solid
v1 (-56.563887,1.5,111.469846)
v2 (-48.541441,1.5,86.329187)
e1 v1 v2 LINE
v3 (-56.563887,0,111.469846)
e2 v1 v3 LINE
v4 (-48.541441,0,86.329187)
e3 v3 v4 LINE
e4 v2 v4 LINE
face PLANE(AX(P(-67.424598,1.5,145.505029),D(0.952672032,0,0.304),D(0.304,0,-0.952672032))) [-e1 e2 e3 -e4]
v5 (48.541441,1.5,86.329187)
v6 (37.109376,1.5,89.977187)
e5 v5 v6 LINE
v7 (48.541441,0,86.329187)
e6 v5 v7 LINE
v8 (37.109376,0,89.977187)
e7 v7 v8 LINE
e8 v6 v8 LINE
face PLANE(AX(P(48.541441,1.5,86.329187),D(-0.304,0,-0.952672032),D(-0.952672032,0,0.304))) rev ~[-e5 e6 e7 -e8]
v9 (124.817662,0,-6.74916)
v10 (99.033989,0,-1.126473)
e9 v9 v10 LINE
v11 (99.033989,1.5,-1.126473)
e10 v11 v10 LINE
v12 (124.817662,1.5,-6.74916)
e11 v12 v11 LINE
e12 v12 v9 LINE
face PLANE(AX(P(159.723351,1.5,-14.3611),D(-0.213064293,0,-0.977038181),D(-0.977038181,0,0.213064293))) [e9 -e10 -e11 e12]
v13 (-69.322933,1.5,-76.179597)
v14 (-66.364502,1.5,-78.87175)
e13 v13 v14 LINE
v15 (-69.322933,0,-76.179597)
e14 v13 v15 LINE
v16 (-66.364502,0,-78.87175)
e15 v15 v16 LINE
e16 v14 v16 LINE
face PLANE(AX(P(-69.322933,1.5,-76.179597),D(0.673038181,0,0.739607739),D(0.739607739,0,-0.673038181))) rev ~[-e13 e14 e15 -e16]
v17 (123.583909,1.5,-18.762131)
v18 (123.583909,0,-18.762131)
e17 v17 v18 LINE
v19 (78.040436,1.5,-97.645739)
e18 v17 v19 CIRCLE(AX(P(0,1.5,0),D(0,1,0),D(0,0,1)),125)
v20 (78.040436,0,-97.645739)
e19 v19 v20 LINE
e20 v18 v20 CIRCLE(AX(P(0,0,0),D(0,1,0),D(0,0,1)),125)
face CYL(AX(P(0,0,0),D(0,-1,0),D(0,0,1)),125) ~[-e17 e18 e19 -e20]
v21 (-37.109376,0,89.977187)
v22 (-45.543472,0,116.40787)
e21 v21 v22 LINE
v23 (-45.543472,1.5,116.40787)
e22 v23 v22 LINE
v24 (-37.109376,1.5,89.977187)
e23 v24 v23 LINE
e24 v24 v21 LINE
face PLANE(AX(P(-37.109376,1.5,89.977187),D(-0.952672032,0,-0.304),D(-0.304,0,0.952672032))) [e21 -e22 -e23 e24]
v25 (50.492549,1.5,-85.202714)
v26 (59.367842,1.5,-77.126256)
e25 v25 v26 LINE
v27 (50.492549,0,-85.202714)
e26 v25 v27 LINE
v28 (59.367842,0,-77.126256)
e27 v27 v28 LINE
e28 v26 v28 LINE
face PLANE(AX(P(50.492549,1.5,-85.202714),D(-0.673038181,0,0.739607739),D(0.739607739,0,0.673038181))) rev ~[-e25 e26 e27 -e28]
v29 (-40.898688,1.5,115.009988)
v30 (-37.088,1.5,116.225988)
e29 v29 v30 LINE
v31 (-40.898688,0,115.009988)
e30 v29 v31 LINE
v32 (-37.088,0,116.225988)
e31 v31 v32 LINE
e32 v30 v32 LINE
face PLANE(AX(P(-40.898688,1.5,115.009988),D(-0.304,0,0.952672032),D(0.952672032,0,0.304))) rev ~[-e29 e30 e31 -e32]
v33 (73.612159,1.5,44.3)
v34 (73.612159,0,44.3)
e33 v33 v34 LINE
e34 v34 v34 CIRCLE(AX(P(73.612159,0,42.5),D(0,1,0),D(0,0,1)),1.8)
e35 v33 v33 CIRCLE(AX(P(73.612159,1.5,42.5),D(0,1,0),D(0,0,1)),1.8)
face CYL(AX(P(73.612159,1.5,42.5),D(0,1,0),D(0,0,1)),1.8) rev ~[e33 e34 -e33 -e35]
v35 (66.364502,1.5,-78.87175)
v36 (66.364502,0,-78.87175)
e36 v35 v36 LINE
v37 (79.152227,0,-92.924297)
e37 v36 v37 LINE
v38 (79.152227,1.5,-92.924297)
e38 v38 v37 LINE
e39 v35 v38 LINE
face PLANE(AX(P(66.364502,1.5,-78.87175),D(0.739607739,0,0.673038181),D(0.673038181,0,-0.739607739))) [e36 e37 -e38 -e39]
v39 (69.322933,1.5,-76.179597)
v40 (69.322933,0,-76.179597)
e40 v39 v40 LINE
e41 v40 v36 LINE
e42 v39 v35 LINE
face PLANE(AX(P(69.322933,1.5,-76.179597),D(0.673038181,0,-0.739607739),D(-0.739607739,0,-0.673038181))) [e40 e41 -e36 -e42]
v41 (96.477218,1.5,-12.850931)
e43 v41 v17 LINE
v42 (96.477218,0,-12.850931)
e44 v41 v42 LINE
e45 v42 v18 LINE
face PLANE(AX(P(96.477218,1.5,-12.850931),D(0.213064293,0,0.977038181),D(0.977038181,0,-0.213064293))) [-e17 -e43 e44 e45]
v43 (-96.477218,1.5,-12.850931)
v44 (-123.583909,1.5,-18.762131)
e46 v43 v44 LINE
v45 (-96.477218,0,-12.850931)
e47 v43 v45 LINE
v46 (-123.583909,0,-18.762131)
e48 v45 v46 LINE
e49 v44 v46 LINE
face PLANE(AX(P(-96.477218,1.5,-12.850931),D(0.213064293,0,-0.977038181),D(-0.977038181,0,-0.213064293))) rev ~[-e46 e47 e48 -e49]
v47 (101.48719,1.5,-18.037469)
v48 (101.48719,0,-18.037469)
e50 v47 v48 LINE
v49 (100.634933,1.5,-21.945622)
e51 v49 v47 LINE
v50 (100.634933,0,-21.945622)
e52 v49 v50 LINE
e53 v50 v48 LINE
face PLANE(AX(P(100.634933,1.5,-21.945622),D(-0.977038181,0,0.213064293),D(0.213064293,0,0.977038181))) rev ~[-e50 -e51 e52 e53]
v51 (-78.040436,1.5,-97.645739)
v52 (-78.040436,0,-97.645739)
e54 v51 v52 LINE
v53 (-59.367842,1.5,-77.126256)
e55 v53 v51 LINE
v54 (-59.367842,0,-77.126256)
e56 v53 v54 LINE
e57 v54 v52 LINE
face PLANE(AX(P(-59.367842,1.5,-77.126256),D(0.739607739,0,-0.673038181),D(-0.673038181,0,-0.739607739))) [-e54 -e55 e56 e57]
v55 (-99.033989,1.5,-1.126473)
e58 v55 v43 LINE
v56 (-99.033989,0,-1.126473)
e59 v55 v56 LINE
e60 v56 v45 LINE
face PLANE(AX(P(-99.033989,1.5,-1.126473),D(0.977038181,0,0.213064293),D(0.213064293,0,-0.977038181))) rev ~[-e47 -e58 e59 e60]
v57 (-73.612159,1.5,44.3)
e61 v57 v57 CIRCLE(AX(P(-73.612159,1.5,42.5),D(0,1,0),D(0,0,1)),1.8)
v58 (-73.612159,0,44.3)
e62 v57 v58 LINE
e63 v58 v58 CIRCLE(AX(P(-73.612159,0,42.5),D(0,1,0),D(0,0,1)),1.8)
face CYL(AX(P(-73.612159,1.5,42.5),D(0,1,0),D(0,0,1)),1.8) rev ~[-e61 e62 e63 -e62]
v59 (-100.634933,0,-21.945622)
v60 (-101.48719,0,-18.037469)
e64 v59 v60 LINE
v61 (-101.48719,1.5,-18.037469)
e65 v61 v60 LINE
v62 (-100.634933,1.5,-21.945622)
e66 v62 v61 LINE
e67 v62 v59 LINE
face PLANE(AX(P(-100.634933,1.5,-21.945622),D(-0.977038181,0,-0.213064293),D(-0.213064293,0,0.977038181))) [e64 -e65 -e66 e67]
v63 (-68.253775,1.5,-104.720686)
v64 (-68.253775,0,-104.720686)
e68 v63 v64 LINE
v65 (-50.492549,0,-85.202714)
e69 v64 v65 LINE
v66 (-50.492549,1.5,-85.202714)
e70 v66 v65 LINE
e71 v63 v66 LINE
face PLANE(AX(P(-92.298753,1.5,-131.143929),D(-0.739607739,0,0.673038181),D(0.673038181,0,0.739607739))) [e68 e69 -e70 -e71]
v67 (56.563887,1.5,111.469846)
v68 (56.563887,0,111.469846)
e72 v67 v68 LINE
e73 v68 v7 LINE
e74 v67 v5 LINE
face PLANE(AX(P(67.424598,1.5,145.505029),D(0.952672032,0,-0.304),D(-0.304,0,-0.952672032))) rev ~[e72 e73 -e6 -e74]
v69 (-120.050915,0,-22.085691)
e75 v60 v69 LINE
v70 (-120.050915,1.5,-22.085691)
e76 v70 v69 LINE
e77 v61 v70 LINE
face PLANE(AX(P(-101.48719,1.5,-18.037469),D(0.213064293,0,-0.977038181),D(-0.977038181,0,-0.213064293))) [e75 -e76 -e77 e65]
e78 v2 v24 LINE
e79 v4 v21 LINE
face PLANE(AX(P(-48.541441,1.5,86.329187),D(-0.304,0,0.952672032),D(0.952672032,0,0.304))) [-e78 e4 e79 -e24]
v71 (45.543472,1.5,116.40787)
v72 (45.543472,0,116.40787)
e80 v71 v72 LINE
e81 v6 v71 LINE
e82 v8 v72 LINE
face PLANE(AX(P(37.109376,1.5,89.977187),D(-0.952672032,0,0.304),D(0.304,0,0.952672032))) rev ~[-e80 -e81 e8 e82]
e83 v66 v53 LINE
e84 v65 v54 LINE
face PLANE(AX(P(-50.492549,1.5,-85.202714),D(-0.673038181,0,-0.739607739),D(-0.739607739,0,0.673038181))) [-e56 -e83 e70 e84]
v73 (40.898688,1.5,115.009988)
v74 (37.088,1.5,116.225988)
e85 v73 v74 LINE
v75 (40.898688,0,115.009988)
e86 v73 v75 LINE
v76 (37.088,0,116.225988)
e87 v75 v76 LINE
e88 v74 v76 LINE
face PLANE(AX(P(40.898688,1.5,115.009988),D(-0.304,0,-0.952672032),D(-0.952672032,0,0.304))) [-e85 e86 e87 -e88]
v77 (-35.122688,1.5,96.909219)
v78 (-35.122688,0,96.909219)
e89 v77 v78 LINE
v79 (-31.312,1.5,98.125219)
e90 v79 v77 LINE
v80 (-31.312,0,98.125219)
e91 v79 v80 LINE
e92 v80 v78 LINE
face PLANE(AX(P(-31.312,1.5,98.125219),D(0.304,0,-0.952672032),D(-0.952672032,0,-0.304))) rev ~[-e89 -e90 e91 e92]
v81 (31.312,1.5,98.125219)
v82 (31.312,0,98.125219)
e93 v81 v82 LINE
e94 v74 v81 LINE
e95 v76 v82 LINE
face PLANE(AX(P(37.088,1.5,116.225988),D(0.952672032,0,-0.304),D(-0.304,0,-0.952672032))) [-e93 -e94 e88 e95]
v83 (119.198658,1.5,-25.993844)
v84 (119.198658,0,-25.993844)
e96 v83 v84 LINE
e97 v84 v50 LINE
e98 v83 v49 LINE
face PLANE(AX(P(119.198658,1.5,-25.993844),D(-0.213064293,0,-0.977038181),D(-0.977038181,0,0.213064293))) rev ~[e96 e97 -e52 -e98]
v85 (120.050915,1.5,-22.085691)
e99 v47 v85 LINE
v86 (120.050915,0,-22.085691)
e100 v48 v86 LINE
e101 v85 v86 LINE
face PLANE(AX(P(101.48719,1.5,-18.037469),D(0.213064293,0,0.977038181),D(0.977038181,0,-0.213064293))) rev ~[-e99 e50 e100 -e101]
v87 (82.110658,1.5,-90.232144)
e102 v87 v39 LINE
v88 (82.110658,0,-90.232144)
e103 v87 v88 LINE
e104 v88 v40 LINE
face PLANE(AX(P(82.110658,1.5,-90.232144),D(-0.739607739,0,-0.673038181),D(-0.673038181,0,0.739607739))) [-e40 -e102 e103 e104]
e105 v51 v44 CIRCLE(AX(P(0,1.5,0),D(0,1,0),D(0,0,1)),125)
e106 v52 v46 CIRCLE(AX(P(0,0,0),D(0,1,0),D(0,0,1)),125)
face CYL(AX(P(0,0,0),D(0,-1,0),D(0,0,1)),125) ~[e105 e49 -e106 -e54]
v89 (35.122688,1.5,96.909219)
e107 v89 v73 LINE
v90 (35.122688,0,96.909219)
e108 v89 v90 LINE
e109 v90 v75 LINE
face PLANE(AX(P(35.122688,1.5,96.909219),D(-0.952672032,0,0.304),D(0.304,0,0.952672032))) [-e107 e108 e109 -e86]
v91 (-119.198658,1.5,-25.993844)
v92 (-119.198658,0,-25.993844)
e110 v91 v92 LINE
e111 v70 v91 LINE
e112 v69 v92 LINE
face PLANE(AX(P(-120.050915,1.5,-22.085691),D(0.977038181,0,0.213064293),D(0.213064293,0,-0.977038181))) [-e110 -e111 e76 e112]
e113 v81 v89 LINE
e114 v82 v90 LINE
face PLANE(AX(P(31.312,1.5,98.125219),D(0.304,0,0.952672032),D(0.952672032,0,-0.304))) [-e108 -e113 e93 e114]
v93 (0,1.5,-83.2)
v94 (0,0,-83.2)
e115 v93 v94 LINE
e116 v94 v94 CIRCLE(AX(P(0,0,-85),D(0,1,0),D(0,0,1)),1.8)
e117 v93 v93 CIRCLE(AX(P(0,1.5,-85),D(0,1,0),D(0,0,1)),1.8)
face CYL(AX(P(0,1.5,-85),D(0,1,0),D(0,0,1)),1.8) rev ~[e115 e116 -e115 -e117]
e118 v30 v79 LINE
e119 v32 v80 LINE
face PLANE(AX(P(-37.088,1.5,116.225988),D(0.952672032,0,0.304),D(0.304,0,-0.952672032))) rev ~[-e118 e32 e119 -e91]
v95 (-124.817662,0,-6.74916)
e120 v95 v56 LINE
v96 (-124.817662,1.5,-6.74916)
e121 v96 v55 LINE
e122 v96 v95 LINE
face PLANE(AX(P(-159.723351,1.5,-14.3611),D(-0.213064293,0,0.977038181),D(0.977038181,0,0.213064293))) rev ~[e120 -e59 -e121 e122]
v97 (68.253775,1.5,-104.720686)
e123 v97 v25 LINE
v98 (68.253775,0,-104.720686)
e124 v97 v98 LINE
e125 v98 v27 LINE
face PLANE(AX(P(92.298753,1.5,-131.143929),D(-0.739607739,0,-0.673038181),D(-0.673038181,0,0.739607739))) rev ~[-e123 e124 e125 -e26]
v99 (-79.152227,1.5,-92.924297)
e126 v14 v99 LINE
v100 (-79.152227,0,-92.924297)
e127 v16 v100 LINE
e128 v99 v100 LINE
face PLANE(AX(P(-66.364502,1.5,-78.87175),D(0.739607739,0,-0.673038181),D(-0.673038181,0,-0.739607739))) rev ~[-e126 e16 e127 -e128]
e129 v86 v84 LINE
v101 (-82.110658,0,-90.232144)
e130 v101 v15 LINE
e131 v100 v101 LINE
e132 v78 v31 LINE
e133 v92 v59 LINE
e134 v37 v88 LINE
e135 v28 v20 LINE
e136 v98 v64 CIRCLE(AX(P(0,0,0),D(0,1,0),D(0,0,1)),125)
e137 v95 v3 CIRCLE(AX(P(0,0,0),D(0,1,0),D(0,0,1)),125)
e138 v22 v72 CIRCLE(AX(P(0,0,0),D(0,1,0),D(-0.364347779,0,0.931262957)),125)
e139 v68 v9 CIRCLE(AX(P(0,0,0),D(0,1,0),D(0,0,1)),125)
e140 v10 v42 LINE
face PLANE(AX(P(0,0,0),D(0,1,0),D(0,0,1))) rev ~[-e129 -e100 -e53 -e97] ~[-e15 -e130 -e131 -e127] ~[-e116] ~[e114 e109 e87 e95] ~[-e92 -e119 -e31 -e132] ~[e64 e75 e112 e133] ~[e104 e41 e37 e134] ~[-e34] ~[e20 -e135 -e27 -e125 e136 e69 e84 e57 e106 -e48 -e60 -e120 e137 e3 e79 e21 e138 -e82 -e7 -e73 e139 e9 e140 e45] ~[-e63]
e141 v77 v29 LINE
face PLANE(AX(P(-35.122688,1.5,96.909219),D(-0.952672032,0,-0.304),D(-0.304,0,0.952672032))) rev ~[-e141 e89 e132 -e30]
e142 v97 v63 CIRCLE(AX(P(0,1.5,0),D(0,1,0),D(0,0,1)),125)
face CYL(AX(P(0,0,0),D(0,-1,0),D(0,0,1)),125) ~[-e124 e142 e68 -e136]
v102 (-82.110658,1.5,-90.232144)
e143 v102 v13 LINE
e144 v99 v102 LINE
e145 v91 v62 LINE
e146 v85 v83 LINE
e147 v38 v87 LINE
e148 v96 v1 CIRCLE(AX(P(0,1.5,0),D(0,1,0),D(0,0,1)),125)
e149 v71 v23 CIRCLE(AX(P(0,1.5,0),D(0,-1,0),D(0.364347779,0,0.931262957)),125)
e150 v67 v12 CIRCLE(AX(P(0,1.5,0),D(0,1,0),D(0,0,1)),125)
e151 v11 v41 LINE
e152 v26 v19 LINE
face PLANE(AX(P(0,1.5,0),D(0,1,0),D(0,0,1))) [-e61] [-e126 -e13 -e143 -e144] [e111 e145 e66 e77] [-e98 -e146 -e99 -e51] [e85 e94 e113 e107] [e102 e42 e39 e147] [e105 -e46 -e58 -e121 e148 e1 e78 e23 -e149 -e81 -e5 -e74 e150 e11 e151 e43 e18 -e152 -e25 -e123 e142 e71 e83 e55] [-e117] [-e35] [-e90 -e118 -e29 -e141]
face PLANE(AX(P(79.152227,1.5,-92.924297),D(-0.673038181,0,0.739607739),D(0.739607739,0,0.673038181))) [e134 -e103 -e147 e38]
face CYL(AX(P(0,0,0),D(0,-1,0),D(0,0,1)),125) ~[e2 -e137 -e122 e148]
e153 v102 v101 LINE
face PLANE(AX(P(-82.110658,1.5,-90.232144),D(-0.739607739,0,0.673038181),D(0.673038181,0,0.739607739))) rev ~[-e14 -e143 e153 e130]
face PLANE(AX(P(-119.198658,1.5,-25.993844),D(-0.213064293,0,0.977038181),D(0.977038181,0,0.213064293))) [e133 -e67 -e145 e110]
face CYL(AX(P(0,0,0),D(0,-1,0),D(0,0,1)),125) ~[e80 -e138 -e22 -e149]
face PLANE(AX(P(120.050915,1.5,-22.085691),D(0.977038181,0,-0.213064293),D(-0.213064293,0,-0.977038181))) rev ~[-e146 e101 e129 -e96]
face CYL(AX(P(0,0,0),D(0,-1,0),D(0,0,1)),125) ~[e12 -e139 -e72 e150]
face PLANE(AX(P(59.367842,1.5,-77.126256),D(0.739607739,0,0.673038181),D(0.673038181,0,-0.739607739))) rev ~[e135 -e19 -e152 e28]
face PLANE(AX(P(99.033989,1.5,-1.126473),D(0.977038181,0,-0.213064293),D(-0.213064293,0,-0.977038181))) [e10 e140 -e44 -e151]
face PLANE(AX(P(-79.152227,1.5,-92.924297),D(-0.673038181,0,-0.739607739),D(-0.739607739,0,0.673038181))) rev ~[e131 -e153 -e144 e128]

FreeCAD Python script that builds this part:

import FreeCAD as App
import Part
import Sketcher


def add_polygon(sketch, points):
    """Adds a closed chain of lines whose ends are joined by coincident constraints."""
    first, n = sketch.GeometryCount, len(points)
    for a, b in zip(points, points[1:] + points[:1]):
        sketch.addGeometry(Part.LineSegment(App.Vector(*a, 0), App.Vector(*b, 0)), False)
    for i in range(n):
        sketch.addConstraint(Sketcher.Constraint("Coincident", first + i, 2, first + (i + 1) % n, 1))

doc = App.newDocument("Part")
body = doc.addObject("PartDesign::Body", "Body")

# Sketch on XZ plane
sketch1 = doc.addObject("Sketcher::SketchObject", "Sketch")
body.addObject(sketch1)
sketch1.AttachmentSupport = (doc.XZ_Plane, [""])
sketch1.MapMode = "FlatFace"
sketch1.addGeometry(Part.Circle(App.Vector(0, 0, 0), App.Vector(0, 0, 1), 125), False)
sketch1.addConstraint([
    Sketcher.Constraint("Coincident", 0, 3, -1, 1),
    Sketcher.Constraint("Diameter", 0, 250.0),
])
pad1 = doc.addObject("PartDesign::Pad", "Pad")
body.addObject(pad1)
pad1.Profile = sketch1
pad1.Length = 1.5
pad1.Reversed = True

# Sketch on XZ plane
sketch2 = doc.addObject("Sketcher::SketchObject", "Sketch001")
body.addObject(sketch2)
sketch2.AttachmentSupport = (doc.XZ_Plane, [""])
sketch2.MapMode = "FlatFace"
sketch2.AttachmentOffset = App.Placement(App.Vector(0, 0, -1.5), App.Rotation())
add_polygon(sketch2, [(-270.191655, 358.673324), (-270.191655, 377.673324), (-267.191655, 377.673324), (-267.191655, 358.673324)])  # lines 0-3
add_polygon(sketch2, [(35.122688, 96.909219), (31.312, 98.125219), (37.088, 116.225988), (40.898688, 115.009988)])  # lines 4-7
add_polygon(sketch2, [(-37.088, 116.225988), (-31.312, 98.125219), (-35.122688, 96.909219), (-40.898688, 115.009988)])  # lines 8-11
add_polygon(sketch2, [(-82.110658, -90.232144), (-69.322933, -76.179597), (-66.364502, -78.87175), (-79.152227, -92.924297)])  # lines 12-15
add_polygon(sketch2, [(-101.48719, -18.037469), (-100.634933, -21.945622), (-119.198658, -25.993844), (-120.050915, -22.085691)])  # lines 16-19
add_polygon(sketch2, [(119.198658, -25.993844), (100.634933, -21.945622), (101.48719, -18.037469), (120.050915, -22.085691)])  # lines 20-23
add_polygon(sketch2, [(66.364502, -78.87175), (69.322933, -76.179597), (82.110658, -90.232144), (79.152227, -92.924297)])  # lines 24-27
sketch2.addConstraint([
    Sketcher.Constraint("Vertical", 0),
    Sketcher.Constraint("Horizontal", 1),
    Sketcher.Constraint("Vertical", 2),
    Sketcher.Constraint("Horizontal", 3),
    Sketcher.Constraint("Symmetric", 4, 2, 8, 2, -2),
    Sketcher.Constraint("Symmetric", 7, 2, 9, 2, -2),
    Sketcher.Constraint("Symmetric", 6, 2, 10, 2, -2),
    Sketcher.Constraint("Symmetric", 5, 2, 11, 2, -2),
    Sketcher.Constraint("Symmetric", 16, 2, 20, 2, -2),
    Sketcher.Constraint("Symmetric", 19, 2, 21, 2, -2),
    Sketcher.Constraint("Symmetric", 18, 2, 22, 2, -2),
    Sketcher.Constraint("Symmetric", 17, 2, 23, 2, -2),
    Sketcher.Constraint("Symmetric", 12, 2, 24, 2, -2),
    Sketcher.Constraint("Symmetric", 15, 2, 25, 2, -2),
    Sketcher.Constraint("Symmetric", 14, 2, 26, 2, -2),
    Sketcher.Constraint("Symmetric", 13, 2, 27, 2, -2),
    Sketcher.Constraint("Perpendicular", 4, 5),
    Sketcher.Constraint("Perpendicular", 5, 6),
    Sketcher.Constraint("Perpendicular", 6, 7),
    Sketcher.Constraint("Perpendicular", 12, 13),
    Sketcher.Constraint("Perpendicular", 13, 14),
    Sketcher.Constraint("Perpendicular", 14, 15),
    Sketcher.Constraint("Perpendicular", 16, 17),
    Sketcher.Constraint("Perpendicular", 17, 18),
    Sketcher.Constraint("Perpendicular", 18, 19),
    Sketcher.Constraint("Equal", 10, 12),
    Sketcher.Constraint("Equal", 11, 13),
    Sketcher.Constraint("Equal", 15, 16),
    Sketcher.Constraint("Equal", 14, 17),
    Sketcher.Constraint("DistanceX", 1, 1, 1, 2, 3.0),
    Sketcher.Constraint("DistanceY", 0, 1, 0, 2, 19.0),
    Sketcher.Constraint("Distance", 4, 4.0),
    Sketcher.Constraint("Distance", 5, 19.0),
    Sketcher.Constraint("DistanceX", 8, 2, 5, 2, 68.4),
    Sketcher.Constraint("DistanceX", -1, 1, 4, 2, 31.312),
    Sketcher.Constraint("DistanceX", 16, 2, 12, 2, 31.312),
    Sketcher.Constraint("DistanceX", 17, 2, 15, 2, 37.088),
    Sketcher.Constraint("DistanceX", 13, 2, -1, 1, 66.364502),
    Sketcher.Constraint("DistanceY", 14, 2, 12, 2, 16.7447),
    Sketcher.Constraint("DistanceY", 15, 2, 17, 2, 64.2383),
    Sketcher.Constraint("DistanceY", -1, 1, 4, 2, 98.125219),
    Sketcher.Constraint("DistanceY", 13, 2, -1, 1, 78.87175),
    Sketcher.Constraint("DistanceX", 0, 2, -1, 1, 270.191655),
    Sketcher.Constraint("DistanceY", -1, 1, 0, 2, 377.673324),
])
pocket1 = doc.addObject("PartDesign::Pocket", "Pocket")
body.addObject(pocket1)
pocket1.Profile = sketch2
pocket1.Type = "ThroughAll"
pocket1.Reversed = True

# Sketch on XZ plane
sketch3 = doc.addObject("Sketcher::SketchObject", "Sketch002")
body.addObject(sketch3)
sketch3.AttachmentSupport = (doc.XZ_Plane, [""])
sketch3.MapMode = "FlatFace"
sketch3.AttachmentOffset = App.Placement(App.Vector(0, 0, -1.5), App.Rotation())
sketch3.addGeometry([
    Part.Circle(App.Vector(0, -85, 0), App.Vector(0, 0, 1), 1.8),
    Part.Circle(App.Vector(73.612159, 42.5, 0), App.Vector(0, 0, 1), 1.8),
    Part.Circle(App.Vector(-73.612159, 42.5, 0), App.Vector(0, 0, 1), 1.8),
], False)
sketch3.addConstraint([
    Sketcher.Constraint("Equal", 0, 1),
    Sketcher.Constraint("Equal", 1, 2),
    Sketcher.Constraint("Symmetric", 1, 3, 2, 3, -2),
    Sketcher.Constraint("PointOnObject", 0, 3, -2),
    Sketcher.Constraint("Diameter", 0, 3.6),
    Sketcher.Constraint("DistanceY", 0, 3, -1, 1, 85.0),
    Sketcher.Constraint("DistanceY", -1, 1, 1, 3, 42.5),
    Sketcher.Constraint("DistanceX", -1, 1, 1, 3, 73.612159),
])
pocket2 = doc.addObject("PartDesign::Pocket", "Pocket001")
body.addObject(pocket2)
pocket2.Profile = sketch3
pocket2.Type = "ThroughAll"
pocket2.Reversed = True

# Sketch on XZ plane
sketch4 = doc.addObject("Sketcher::SketchObject", "Sketch003")
body.addObject(sketch4)
sketch4.AttachmentSupport = (doc.XZ_Plane, [""])
sketch4.MapMode = "FlatFace"
sketch4.AttachmentOffset = App.Placement(App.Vector(0, 0, -1.5), App.Rotation())
add_polygon(sketch4, [(-67.424598, 145.505029), (-55.992534, 149.153029), (-37.109376, 89.977187), (-48.541441, 86.329187)])  # lines 0-3
add_polygon(sketch4, [(67.424598, 145.505029), (48.541441, 86.329187), (37.109376, 89.977187), (55.992534, 149.153029)])  # lines 4-7
sketch4.addConstraint([
    Sketcher.Constraint("Symmetric", 2, 2, 4, 2, -2),
    Sketcher.Constraint("Symmetric", 1, 2, 5, 2, -2),
    Sketcher.Constraint("Symmetric", 0, 2, 6, 2, -2),
    Sketcher.Constraint("Symmetric", 3, 2, 7, 2, -2),
    Sketcher.Constraint("Perpendicular", 0, 1),
    Sketcher.Constraint("Perpendicular", 1, 2),
    Sketcher.Constraint("Perpendicular", 2, 3),
    Sketcher.Constraint("Distance", 0, 12.0),
    Sketcher.Constraint("DistanceY", 2, 2, 1, 2, 3.648),
    Sketcher.Constraint("DistanceX", 3, 2, -1, 1, 67.424598),
    Sketcher.Constraint("Distance", 1, 62.11565),
    Sketcher.Constraint("DistanceY", -1, 1, 0, 2, 149.153029),
])
pocket3 = doc.addObject("PartDesign::Pocket", "Pocket002")
body.addObject(pocket3)
pocket3.Profile = sketch4
pocket3.Type = "ThroughAll"
pocket3.Reversed = True
doc.recompute()

polarpattern = doc.addObject("PartDesign::PolarPattern", "PolarPattern")
body.addObject(polarpattern)
polarpattern.Originals = [pocket3]
polarpattern.Axis = (doc.Y_Axis, [""])
polarpattern.Angle = 360
polarpattern.Occurrences = 3
body.Tip = polarpattern

doc.recompute()
